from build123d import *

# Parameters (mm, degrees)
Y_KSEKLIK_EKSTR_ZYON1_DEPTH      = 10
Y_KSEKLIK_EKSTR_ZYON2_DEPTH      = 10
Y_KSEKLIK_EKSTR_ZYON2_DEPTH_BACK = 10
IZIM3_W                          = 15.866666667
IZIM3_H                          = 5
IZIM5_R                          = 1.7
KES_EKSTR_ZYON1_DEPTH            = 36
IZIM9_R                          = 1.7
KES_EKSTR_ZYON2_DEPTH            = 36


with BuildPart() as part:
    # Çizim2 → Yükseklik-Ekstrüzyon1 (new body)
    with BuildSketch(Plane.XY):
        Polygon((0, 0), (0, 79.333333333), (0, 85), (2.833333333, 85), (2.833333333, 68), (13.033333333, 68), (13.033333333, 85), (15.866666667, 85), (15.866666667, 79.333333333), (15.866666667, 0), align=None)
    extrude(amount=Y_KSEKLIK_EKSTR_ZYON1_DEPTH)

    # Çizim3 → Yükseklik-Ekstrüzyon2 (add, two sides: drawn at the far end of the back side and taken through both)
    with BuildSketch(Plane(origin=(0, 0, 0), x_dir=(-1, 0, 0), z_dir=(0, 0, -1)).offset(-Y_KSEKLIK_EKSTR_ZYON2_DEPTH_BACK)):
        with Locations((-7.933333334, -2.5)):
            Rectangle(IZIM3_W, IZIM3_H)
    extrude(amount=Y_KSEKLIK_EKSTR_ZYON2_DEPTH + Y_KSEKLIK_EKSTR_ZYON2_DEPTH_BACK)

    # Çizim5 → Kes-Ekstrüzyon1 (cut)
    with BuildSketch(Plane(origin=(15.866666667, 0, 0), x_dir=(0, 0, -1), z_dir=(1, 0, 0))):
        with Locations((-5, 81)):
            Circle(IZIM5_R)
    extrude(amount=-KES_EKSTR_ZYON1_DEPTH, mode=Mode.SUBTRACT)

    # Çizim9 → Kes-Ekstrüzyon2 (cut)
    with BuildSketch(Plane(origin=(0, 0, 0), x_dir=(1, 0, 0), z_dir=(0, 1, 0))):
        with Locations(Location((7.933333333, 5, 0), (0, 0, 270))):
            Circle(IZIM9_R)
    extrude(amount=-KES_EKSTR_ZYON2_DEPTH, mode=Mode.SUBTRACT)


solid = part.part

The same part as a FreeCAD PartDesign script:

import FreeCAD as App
import Part
import Sketcher

V = App.Vector

doc = App.newDocument("Part")
body = doc.addObject("PartDesign::Body", "Body")

# Sketch on XY plane
sketch1 = body.newObject("Sketcher::SketchObject", "Sketch")
sketch1.AttachmentSupport = (doc.getObject("XY_Plane"), [""])
sketch1.MapMode = "FlatFace"
sketch1.addGeometry([
    Part.LineSegment(V(0, 85, 0), V(0, 0, 0)),  # 0
    Part.LineSegment(V(0, 0, 0), V(15.866667, 0, 0)),  # 1
    Part.LineSegment(V(15.866667, 0, 0), V(15.866667, 85, 0)),  # 2
    Part.LineSegment(V(15.866667, 85, 0), V(13.033333, 85, 0)),  # 3
    Part.LineSegment(V(13.033333, 85, 0), V(13.033333, 68, 0)),  # 4
    Part.LineSegment(V(13.033333, 68, 0), V(2.833333, 68, 0)),  # 5
    Part.LineSegment(V(2.833333, 68, 0), V(2.833333, 85, 0)),  # 6
    Part.LineSegment(V(2.833333, 85, 0), V(0, 85, 0)),  # 7
], False)
sketch1.addConstraint([
    Sketcher.Constraint("Coincident", 0, 2, 1, 1),
    Sketcher.Constraint("Coincident", 1, 2, 2, 1),
    Sketcher.Constraint("Coincident", 2, 2, 3, 1),
    Sketcher.Constraint("Coincident", 3, 2, 4, 1),
    Sketcher.Constraint("Coincident", 4, 2, 5, 1),
    Sketcher.Constraint("Coincident", 5, 2, 6, 1),
    Sketcher.Constraint("Coincident", 6, 2, 7, 1),
    Sketcher.Constraint("Coincident", 7, 2, 0, 1),
    Sketcher.Constraint("Vertical", 0),
    Sketcher.Constraint("Horizontal", 1),
    Sketcher.Constraint("Vertical", 2),
    Sketcher.Constraint("Horizontal", 3),
    Sketcher.Constraint("Vertical", 4),
    Sketcher.Constraint("Horizontal", 5),
    Sketcher.Constraint("Vertical", 6),
    Sketcher.Constraint("Horizontal", 7),
    Sketcher.Constraint("Coincident", 0, 2, -1, 1),
    Sketcher.Constraint("Horizontal", 3, 2, 6, 2),
    Sketcher.Constraint("Equal", 3, 7),
    Sketcher.Constraint("DistanceY", 0, 2, 0, 1, 85.0),
    Sketcher.Constraint("DistanceY", 4, 2, 4, 1, 17.0),
    Sketcher.Constraint("DistanceX", 5, 2, 5, 1, 10.2),
    Sketcher.Constraint("DistanceX", 1, 1, 1, 2, 15.866667),
])
pad1 = body.newObject("PartDesign::Pad", "Pad")
pad1.Profile = sketch1
pad1.Length = 10

# Sketch on XY plane
sketch2 = body.newObject("Sketcher::SketchObject", "Sketch001")
sketch2.AttachmentSupport = (doc.getObject("XY_Plane"), [""])
sketch2.MapMode = "FlatFace"
sketch2.addGeometry([
    Part.LineSegment(V(15.866667, 0, 0), V(15.866667, -5, 0)),
    Part.LineSegment(V(15.866667, -5, 0), V(0, -5, 0)),
    Part.LineSegment(V(0, -5, 0), V(0, 0, 0)),
    Part.LineSegment(V(0, 0, 0), V(15.866667, 0, 0)),
], False)
sketch2.addConstraint([
    Sketcher.Constraint("Coincident", 0, 2, 1, 1),
    Sketcher.Constraint("Coincident", 1, 2, 2, 1),
    Sketcher.Constraint("Coincident", 2, 2, 3, 1),
    Sketcher.Constraint("Coincident", 3, 2, 0, 1),
    Sketcher.Constraint("Vertical", 0),
    Sketcher.Constraint("Horizontal", 1),
    Sketcher.Constraint("Vertical", 2),
    Sketcher.Constraint("Horizontal", 3),
    Sketcher.Constraint("Coincident", 2, 2, -1, 1),
    Sketcher.Constraint("DistanceY", 0, 2, 0, 1, 5.0),
    Sketcher.Constraint("DistanceX", 1, 2, 1, 1, 15.866667),
])
pad2 = body.newObject("PartDesign::Pad", "Pad001")
pad2.Profile = sketch2
pad2.Type = "TwoLengths"
pad2.Length = 10
pad2.Length2 = 10
pad2.Reversed = True

# Sketch on YZ plane
sketch3 = body.newObject("Sketcher::SketchObject", "Sketch002")
sketch3.AttachmentSupport = (doc.getObject("YZ_Plane"), [""])
sketch3.MapMode = "FlatFace"
sketch3.AttachmentOffset = App.Placement(V(0, 0, 15.866667), App.Rotation())
sketch3.addGeometry(Part.Circle(V(81, 5, 0), V(0, 0, 1), 1.7), False)
sketch3.addConstraint([
    Sketcher.Constraint("Diameter", 0, 3.4),
    Sketcher.Constraint("DistanceX", -1, 1, 0, 3, 81.0),
    Sketcher.Constraint("DistanceY", -1, 1, 0, 3, 5.0),
])
pocket1 = body.newObject("PartDesign::Pocket", "Pocket")
pocket1.Profile = sketch3
pocket1.Length = 36

# Sketch on XZ plane
sketch4 = body.newObject("Sketcher::SketchObject", "Sketch003")
sketch4.AttachmentSupport = (doc.getObject("XZ_Plane"), [""])
sketch4.MapMode = "FlatFace"
sketch4.addGeometry(Part.Circle(V(7.933333, -5, 0), V(0, 0, 1), 1.7), False)
sketch4.addConstraint([
    Sketcher.Constraint("Diameter", 0, 3.4),
    Sketcher.Constraint("DistanceY", 0, 3, -1, 1, 5.0),
    Sketcher.Constraint("DistanceX", -1, 1, 0, 3, 7.933333),
])
pocket2 = body.newObject("PartDesign::Pocket", "Pocket001")
pocket2.Profile = sketch4
pocket2.Length = 36
pocket2.Reversed = True

doc.recompute()
